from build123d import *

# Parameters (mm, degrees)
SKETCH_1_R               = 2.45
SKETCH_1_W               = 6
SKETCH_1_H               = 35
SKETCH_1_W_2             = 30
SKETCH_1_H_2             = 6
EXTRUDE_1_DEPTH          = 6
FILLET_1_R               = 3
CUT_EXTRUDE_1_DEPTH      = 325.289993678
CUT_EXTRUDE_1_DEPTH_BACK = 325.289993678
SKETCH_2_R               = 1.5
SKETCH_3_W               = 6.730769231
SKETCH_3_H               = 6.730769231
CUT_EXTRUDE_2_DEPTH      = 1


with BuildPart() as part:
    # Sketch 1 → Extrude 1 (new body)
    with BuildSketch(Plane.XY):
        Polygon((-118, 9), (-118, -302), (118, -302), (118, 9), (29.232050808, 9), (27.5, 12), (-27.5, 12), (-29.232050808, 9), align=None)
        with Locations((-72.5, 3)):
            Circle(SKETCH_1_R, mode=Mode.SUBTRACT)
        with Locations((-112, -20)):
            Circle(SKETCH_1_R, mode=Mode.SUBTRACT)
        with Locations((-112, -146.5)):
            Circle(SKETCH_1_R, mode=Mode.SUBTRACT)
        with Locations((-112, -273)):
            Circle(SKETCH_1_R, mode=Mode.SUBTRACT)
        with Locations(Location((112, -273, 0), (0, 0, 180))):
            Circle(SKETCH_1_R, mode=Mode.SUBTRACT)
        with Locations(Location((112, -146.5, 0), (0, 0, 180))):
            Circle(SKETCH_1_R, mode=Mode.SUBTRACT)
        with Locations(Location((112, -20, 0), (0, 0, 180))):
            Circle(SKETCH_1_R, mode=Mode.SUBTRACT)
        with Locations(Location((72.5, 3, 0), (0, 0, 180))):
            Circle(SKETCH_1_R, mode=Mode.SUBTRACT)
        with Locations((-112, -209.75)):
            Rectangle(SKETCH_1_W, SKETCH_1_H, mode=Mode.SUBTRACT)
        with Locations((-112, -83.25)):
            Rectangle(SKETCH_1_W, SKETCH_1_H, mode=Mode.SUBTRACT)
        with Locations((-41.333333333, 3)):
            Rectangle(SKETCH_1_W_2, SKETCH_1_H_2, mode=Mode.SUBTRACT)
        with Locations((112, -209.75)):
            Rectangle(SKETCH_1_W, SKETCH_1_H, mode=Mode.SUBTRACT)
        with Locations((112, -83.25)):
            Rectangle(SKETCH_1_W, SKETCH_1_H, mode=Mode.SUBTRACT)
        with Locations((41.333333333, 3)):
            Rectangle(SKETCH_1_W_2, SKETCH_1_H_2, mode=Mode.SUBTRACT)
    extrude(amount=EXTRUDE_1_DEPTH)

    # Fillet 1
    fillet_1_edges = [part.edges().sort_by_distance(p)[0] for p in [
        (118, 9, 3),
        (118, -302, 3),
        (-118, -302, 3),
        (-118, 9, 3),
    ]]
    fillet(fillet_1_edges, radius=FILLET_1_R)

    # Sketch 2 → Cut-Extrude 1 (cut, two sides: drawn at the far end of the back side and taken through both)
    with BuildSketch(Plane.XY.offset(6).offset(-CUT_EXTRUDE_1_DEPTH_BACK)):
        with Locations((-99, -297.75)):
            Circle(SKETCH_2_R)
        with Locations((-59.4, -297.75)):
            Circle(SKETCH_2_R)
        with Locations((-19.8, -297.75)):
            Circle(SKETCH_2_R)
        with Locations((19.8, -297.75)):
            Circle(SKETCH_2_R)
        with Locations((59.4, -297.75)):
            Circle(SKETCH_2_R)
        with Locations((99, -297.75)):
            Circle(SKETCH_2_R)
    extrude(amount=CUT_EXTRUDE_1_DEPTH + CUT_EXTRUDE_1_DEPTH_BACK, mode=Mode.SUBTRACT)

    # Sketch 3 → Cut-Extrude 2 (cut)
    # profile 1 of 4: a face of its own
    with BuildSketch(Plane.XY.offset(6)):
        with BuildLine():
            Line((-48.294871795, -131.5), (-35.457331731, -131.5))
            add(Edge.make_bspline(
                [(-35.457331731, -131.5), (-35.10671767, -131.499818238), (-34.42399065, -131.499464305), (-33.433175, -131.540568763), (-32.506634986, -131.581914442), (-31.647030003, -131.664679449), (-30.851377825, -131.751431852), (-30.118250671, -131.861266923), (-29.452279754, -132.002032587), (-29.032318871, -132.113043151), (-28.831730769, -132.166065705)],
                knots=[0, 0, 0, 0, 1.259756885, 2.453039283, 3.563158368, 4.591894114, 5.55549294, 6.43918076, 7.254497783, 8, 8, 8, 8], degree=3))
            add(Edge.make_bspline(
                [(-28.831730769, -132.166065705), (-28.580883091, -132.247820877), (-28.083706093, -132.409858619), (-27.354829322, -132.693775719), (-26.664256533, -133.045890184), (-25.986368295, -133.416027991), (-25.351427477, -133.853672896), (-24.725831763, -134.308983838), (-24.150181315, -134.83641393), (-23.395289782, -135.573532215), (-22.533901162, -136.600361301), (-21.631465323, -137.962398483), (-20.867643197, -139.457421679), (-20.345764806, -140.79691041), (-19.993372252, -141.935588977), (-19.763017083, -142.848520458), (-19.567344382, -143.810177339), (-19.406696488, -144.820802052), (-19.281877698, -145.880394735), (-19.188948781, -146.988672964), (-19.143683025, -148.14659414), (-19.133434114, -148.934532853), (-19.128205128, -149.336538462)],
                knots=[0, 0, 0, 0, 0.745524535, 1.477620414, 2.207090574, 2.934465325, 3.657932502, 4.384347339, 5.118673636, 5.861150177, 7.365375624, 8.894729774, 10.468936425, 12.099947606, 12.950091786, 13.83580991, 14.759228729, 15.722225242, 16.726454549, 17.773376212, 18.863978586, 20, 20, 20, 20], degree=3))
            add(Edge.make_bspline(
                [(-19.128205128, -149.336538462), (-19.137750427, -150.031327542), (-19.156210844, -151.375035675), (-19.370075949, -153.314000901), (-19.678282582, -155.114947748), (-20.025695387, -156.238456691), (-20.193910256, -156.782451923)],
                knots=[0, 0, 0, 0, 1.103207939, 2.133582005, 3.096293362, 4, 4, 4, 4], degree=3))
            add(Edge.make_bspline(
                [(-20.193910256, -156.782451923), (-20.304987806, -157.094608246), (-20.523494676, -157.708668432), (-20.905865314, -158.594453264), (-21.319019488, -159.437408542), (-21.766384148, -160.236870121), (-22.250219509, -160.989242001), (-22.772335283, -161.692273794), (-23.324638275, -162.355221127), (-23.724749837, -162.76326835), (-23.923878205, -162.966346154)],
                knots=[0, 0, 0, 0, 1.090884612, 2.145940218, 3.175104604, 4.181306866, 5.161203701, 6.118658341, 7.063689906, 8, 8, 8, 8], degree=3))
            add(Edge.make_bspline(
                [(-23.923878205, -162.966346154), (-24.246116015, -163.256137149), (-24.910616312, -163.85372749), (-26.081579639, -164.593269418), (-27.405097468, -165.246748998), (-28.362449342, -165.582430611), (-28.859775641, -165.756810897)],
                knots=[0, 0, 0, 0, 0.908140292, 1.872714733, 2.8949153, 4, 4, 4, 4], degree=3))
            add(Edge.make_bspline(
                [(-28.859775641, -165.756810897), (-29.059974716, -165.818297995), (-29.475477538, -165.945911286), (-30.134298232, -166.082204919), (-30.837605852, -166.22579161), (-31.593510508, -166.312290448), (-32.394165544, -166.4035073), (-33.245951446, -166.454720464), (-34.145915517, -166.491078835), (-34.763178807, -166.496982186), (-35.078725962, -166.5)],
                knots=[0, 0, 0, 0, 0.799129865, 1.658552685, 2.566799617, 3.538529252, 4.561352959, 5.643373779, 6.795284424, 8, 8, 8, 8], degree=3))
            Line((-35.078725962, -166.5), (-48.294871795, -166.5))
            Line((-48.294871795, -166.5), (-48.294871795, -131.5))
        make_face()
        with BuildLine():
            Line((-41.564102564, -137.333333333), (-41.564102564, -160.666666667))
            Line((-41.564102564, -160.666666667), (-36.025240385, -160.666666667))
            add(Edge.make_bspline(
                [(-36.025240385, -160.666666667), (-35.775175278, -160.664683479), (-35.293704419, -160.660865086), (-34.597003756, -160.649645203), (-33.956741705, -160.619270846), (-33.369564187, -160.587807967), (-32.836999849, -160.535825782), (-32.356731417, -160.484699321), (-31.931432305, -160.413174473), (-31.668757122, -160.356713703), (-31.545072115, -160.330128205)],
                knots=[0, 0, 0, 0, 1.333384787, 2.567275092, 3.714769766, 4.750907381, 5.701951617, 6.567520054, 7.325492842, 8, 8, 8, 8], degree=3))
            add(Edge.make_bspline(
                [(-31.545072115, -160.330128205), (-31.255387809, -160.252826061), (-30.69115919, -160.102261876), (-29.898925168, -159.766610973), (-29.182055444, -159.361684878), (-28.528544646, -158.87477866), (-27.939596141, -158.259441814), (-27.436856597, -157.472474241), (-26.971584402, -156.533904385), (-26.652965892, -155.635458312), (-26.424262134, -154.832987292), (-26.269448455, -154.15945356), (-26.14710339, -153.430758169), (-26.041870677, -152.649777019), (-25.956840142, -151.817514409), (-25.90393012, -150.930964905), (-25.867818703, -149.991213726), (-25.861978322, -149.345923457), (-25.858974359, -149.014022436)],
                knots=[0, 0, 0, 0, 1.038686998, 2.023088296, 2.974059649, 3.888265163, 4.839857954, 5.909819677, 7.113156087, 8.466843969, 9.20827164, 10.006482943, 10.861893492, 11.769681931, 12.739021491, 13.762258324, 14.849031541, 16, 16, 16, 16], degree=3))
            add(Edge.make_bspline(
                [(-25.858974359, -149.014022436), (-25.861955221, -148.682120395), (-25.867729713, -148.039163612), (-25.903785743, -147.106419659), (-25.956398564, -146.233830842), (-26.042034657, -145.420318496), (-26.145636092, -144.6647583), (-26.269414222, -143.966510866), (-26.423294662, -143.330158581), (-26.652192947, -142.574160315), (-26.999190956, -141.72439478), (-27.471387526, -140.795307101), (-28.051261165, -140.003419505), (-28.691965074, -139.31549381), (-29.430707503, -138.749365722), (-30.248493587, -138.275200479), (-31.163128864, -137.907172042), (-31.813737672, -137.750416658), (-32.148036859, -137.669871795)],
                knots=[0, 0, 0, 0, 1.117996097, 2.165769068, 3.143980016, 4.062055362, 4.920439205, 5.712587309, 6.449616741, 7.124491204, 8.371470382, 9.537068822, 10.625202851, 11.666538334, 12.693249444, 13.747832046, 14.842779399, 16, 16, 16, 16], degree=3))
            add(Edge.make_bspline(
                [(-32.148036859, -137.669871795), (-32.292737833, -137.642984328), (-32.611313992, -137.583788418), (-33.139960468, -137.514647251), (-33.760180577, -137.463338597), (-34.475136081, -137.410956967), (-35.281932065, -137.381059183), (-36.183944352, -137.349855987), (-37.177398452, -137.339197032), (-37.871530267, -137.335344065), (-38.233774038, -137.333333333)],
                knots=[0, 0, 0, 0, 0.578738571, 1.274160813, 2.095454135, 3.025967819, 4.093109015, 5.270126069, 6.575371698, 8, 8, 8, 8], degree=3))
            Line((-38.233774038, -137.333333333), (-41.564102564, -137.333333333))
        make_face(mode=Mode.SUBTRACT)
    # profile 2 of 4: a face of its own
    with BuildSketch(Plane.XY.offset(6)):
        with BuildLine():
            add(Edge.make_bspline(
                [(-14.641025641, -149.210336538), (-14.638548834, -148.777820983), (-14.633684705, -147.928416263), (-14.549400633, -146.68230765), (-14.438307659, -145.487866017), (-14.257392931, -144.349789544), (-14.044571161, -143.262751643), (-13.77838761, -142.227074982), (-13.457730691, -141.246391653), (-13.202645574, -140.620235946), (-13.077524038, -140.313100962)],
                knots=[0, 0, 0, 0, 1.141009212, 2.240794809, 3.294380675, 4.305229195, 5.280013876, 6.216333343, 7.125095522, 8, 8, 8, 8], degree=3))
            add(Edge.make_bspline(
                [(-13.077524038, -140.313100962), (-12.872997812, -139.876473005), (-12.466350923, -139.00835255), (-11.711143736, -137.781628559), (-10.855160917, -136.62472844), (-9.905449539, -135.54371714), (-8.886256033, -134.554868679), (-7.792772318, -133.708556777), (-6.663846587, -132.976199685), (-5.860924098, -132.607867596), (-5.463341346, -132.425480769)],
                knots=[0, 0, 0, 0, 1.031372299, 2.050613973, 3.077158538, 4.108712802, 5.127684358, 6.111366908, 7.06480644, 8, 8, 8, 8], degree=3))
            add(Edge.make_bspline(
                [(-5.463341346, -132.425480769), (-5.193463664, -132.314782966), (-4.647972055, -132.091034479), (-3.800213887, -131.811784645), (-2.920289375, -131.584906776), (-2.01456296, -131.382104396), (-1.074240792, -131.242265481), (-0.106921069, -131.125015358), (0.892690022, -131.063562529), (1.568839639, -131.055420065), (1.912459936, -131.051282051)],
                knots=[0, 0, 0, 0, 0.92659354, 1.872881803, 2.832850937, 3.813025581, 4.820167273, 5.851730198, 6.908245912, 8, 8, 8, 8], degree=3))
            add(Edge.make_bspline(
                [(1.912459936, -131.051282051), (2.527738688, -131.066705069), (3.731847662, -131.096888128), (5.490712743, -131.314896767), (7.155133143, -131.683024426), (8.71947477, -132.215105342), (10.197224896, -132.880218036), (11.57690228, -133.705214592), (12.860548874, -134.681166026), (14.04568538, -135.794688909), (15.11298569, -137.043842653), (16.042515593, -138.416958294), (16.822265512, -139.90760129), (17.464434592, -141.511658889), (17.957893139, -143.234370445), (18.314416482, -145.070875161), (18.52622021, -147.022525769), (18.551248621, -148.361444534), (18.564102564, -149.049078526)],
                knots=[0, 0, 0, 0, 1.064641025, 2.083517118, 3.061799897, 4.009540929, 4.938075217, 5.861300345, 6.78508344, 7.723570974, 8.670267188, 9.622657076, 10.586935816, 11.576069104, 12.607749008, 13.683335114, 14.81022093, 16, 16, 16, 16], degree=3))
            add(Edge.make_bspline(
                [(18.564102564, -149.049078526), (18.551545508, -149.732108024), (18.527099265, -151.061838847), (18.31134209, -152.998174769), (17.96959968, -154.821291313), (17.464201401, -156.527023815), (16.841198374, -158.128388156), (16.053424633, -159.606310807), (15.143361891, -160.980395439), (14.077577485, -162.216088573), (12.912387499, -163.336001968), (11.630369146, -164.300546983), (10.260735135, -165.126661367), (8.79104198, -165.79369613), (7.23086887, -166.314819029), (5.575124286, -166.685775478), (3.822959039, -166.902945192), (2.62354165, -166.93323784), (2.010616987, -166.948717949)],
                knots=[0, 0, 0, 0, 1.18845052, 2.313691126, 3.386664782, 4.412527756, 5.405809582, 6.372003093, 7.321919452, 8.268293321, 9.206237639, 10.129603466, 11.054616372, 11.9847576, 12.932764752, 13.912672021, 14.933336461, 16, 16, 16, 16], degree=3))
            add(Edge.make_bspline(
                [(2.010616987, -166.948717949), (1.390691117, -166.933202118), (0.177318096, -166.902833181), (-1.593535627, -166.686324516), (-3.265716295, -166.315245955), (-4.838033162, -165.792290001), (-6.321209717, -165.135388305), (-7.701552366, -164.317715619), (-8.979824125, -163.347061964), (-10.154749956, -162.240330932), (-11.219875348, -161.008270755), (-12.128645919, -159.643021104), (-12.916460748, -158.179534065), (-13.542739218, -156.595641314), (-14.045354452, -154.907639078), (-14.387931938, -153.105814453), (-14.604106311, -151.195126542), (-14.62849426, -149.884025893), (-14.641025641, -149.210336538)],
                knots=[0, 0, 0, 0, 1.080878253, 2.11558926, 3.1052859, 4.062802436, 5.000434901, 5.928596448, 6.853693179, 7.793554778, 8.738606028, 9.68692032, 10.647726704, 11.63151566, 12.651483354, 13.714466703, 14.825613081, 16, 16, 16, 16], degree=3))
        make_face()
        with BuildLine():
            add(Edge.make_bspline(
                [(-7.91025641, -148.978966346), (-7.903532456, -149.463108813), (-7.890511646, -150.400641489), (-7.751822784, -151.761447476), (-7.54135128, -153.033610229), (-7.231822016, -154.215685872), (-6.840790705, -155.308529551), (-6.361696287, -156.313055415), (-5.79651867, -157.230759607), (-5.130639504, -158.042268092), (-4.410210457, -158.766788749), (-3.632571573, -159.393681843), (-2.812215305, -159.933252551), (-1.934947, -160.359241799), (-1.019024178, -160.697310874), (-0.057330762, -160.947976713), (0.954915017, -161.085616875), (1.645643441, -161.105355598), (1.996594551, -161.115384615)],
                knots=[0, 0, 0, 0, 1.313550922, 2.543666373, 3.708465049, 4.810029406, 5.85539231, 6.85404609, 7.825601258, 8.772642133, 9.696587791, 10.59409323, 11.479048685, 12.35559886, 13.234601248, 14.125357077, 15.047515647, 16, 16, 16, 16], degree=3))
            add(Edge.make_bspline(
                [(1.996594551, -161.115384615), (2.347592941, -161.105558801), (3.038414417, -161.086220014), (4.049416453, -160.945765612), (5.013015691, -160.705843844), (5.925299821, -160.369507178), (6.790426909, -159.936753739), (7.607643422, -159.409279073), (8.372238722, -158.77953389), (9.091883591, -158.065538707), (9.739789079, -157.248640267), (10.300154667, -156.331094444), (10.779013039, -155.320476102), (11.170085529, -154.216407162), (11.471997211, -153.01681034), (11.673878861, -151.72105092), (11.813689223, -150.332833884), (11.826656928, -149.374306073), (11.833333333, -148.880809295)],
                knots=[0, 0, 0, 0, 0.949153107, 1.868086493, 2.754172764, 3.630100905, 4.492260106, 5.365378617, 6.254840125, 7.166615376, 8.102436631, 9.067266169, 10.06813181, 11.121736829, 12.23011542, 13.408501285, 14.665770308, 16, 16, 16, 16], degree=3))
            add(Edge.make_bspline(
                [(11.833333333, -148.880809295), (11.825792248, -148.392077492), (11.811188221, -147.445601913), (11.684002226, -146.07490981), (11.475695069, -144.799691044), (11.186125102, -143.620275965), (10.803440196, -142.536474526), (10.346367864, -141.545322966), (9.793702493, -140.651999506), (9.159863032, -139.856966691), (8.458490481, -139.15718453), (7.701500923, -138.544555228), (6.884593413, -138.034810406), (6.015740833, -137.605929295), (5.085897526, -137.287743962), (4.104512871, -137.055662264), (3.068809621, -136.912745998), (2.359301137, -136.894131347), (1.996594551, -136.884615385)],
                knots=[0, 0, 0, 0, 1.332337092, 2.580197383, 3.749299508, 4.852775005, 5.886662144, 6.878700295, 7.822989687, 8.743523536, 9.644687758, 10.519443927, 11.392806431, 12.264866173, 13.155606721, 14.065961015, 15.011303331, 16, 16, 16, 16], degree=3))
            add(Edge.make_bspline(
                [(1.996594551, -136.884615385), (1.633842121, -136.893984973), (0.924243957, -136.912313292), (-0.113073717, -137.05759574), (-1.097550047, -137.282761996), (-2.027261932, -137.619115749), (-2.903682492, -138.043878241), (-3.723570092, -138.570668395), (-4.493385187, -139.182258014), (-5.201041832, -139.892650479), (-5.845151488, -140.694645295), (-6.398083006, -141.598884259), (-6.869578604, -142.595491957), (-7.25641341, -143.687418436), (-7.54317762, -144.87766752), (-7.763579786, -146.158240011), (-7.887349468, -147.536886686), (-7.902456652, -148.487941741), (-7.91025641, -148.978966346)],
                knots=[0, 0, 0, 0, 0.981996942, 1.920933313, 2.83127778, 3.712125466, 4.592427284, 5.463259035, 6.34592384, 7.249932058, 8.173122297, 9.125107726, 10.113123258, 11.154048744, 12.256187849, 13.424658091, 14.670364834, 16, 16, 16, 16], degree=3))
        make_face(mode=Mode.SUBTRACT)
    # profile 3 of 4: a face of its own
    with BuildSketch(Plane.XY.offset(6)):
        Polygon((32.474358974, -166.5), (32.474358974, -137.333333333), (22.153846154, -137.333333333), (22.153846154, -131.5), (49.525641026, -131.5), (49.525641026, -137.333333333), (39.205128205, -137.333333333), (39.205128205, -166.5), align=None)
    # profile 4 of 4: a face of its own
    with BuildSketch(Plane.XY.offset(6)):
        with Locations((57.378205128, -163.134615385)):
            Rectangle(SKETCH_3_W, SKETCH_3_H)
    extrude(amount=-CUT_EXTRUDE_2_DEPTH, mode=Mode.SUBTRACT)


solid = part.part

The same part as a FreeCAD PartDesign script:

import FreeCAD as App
import Part
import Sketcher
Q = App.Units.Quantity


def edges_at(feature, points):
    """Names of the edges that pass closest to the given points."""
    edges = feature.Shape.Edges
    near = lambda p: min(range(len(edges)), key=lambda i: edges[i].distToShape(Part.Vertex(*p))[0])
    return sorted({f"Edge{near(p) + 1}" for p in points})

doc = App.newDocument("Part")
body = doc.addObject("PartDesign::Body", "Body")

# Sketch on XY plane
sketch1 = body.newObject("Sketcher::SketchObject", "Sketch")
sketch1.AttachmentSupport = (doc.getObject("XY_Plane"), [""])
sketch1.MapMode = "FlatFace"
sketch1.addGeometry(Part.LineSegment(App.Vector(-118, 9, 0), App.Vector(-118, -302, 0)), False)
sketch1.addGeometry(Part.LineSegment(App.Vector(-118, -302, 0), App.Vector(118, -302, 0)), False)
sketch1.addGeometry(Part.LineSegment(App.Vector(118, -302, 0), App.Vector(118, 9, 0)), False)
sketch1.addGeometry(Part.LineSegment(App.Vector(118, 9, 0), App.Vector(29.2, 9, 0)), False)
sketch1.addGeometry(Part.LineSegment(App.Vector(29.2, 9, 0), App.Vector(27.5, 12, 0)), False)
sketch1.addGeometry(Part.LineSegment(App.Vector(27.5, 12, 0), App.Vector(-27.5, 12, 0)), False)
sketch1.addGeometry(Part.LineSegment(App.Vector(-27.5, 12, 0), App.Vector(-29.2, 9, 0)), False)
sketch1.addGeometry(Part.LineSegment(App.Vector(-29.2, 9, 0), App.Vector(-118, 9, 0)), False)
sketch1.addGeometry(Part.Circle(App.Vector(-112, -273, 0), App.Vector(0, 0, 1), 2.5), False)
sketch1.addGeometry(Part.LineSegment(App.Vector(-109, -227.2, 0), App.Vector(-115, -227.2, 0)), False)
sketch1.addGeometry(Part.LineSegment(App.Vector(-115, -227.2, 0), App.Vector(-115, -192.2, 0)), False)
sketch1.addGeometry(Part.LineSegment(App.Vector(-115, -192.2, 0), App.Vector(-109, -192.2, 0)), False)
sketch1.addGeometry(Part.LineSegment(App.Vector(-109, -192.2, 0), App.Vector(-109, -227.2, 0)), False)
sketch1.addGeometry(Part.Circle(App.Vector(-112, -146.5, 0), App.Vector(0, 0, 1), 2.5), False)
sketch1.addGeometry(Part.Circle(App.Vector(112, -273, 0), App.Vector(0, 0, 1), 2.5), False)
sketch1.addGeometry(Part.LineSegment(App.Vector(115, -227.2, 0), App.Vector(109, -227.2, 0)), False)
sketch1.addGeometry(Part.LineSegment(App.Vector(109, -227.2, 0), App.Vector(109, -192.2, 0)), False)
sketch1.addGeometry(Part.LineSegment(App.Vector(109, -192.2, 0), App.Vector(115, -192.2, 0)), False)
sketch1.addGeometry(Part.LineSegment(App.Vector(115, -192.2, 0), App.Vector(115, -227.2, 0)), False)
sketch1.addGeometry(Part.Circle(App.Vector(112, -146.5, 0), App.Vector(0, 0, 1), 2.5), False)
sketch1.addGeometry(Part.LineSegment(App.Vector(-109, -100.8, 0), App.Vector(-115, -100.8, 0)), False)
sketch1.addGeometry(Part.LineSegment(App.Vector(-115, -100.8, 0), App.Vector(-115, -65.8, 0)), False)
sketch1.addGeometry(Part.LineSegment(App.Vector(-115, -65.8, 0), App.Vector(-109, -65.8, 0)), False)
sketch1.addGeometry(Part.LineSegment(App.Vector(-109, -65.8, 0), App.Vector(-109, -100.8, 0)), False)
sketch1.addGeometry(Part.Circle(App.Vector(-112, -20, 0), App.Vector(0, 0, 1), 2.5), False)
sketch1.addGeometry(Part.Circle(App.Vector(-72.5, 3, 0), App.Vector(0, 0, 1), 2.5), False)
sketch1.addGeometry(Part.LineSegment(App.Vector(-26.3, 0, 0), App.Vector(-56.3, 0, 0)), False)
sketch1.addGeometry(Part.LineSegment(App.Vector(-56.3, 0, 0), App.Vector(-56.3, 6, 0)), False)
sketch1.addGeometry(Part.LineSegment(App.Vector(-56.3, 6, 0), App.Vector(-26.3, 6, 0)), False)
sketch1.addGeometry(Part.LineSegment(App.Vector(-26.3, 6, 0), App.Vector(-26.3, 0, 0)), False)
sketch1.addGeometry(Part.LineSegment(App.Vector(115, -100.8, 0), App.Vector(109, -100.8, 0)), False)
sketch1.addGeometry(Part.LineSegment(App.Vector(109, -100.8, 0), App.Vector(109, -65.8, 0)), False)
sketch1.addGeometry(Part.LineSegment(App.Vector(109, -65.8, 0), App.Vector(115, -65.8, 0)), False)
sketch1.addGeometry(Part.LineSegment(App.Vector(115, -65.8, 0), App.Vector(115, -100.8, 0)), False)
sketch1.addGeometry(Part.LineSegment(App.Vector(56.3, 0, 0), App.Vector(26.3, 0, 0)), False)
sketch1.addGeometry(Part.LineSegment(App.Vector(26.3, 0, 0), App.Vector(26.3, 6, 0)), False)
sketch1.addGeometry(Part.LineSegment(App.Vector(26.3, 6, 0), App.Vector(56.3, 6, 0)), False)
sketch1.addGeometry(Part.LineSegment(App.Vector(56.3, 6, 0), App.Vector(56.3, 0, 0)), False)
sketch1.addGeometry(Part.Circle(App.Vector(72.5, 3, 0), App.Vector(0, 0, 1), 2.5), False)
sketch1.addGeometry(Part.Circle(App.Vector(112, -20, 0), App.Vector(0, 0, 1), 2.5), False)
sketch1.addConstraint(Sketcher.Constraint("Coincident", 0, 2, 1, 1))
sketch1.addConstraint(Sketcher.Constraint("Coincident", 1, 2, 2, 1))
sketch1.addConstraint(Sketcher.Constraint("Coincident", 2, 2, 3, 1))
sketch1.addConstraint(Sketcher.Constraint("Coincident", 3, 2, 4, 1))
sketch1.addConstraint(Sketcher.Constraint("Coincident", 4, 2, 5, 1))
sketch1.addConstraint(Sketcher.Constraint("Coincident", 5, 2, 6, 1))
sketch1.addConstraint(Sketcher.Constraint("Coincident", 6, 2, 7, 1))
sketch1.addConstraint(Sketcher.Constraint("Coincident", 7, 2, 0, 1))
sketch1.addConstraint(Sketcher.Constraint("Coincident", 9, 2, 10, 1))
sketch1.addConstraint(Sketcher.Constraint("Coincident", 10, 2, 11, 1))
sketch1.addConstraint(Sketcher.Constraint("Coincident", 11, 2, 12, 1))
sketch1.addConstraint(Sketcher.Constraint("Coincident", 12, 2, 9, 1))
sketch1.addConstraint(Sketcher.Constraint("Coincident", 15, 2, 16, 1))
sketch1.addConstraint(Sketcher.Constraint("Coincident", 16, 2, 17, 1))
sketch1.addConstraint(Sketcher.Constraint("Coincident", 17, 2, 18, 1))
sketch1.addConstraint(Sketcher.Constraint("Coincident", 18, 2, 15, 1))
sketch1.addConstraint(Sketcher.Constraint("Coincident", 20, 2, 21, 1))
sketch1.addConstraint(Sketcher.Constraint("Coincident", 21, 2, 22, 1))
sketch1.addConstraint(Sketcher.Constraint("Coincident", 22, 2, 23, 1))
sketch1.addConstraint(Sketcher.Constraint("Coincident", 23, 2, 20, 1))
sketch1.addConstraint(Sketcher.Constraint("Coincident", 26, 2, 27, 1))
sketch1.addConstraint(Sketcher.Constraint("Coincident", 27, 2, 28, 1))
sketch1.addConstraint(Sketcher.Constraint("Coincident", 28, 2, 29, 1))
sketch1.addConstraint(Sketcher.Constraint("Coincident", 29, 2, 26, 1))
sketch1.addConstraint(Sketcher.Constraint("Coincident", 30, 2, 31, 1))
sketch1.addConstraint(Sketcher.Constraint("Coincident", 31, 2, 32, 1))
sketch1.addConstraint(Sketcher.Constraint("Coincident", 32, 2, 33, 1))
sketch1.addConstraint(Sketcher.Constraint("Coincident", 33, 2, 30, 1))
sketch1.addConstraint(Sketcher.Constraint("Coincident", 34, 2, 35, 1))
sketch1.addConstraint(Sketcher.Constraint("Coincident", 35, 2, 36, 1))
sketch1.addConstraint(Sketcher.Constraint("Coincident", 36, 2, 37, 1))
sketch1.addConstraint(Sketcher.Constraint("Coincident", 37, 2, 34, 1))
sketch1.addConstraint(Sketcher.Constraint("Vertical", 0))
sketch1.addConstraint(Sketcher.Constraint("Horizontal", 1))
sketch1.addConstraint(Sketcher.Constraint("Vertical", 2))
sketch1.addConstraint(Sketcher.Constraint("Horizontal", 3))
sketch1.addConstraint(Sketcher.Constraint("Horizontal", 5))
sketch1.addConstraint(Sketcher.Constraint("Horizontal", 7))
sketch1.addConstraint(Sketcher.Constraint("Horizontal", 9))
sketch1.addConstraint(Sketcher.Constraint("Vertical", 10))
sketch1.addConstraint(Sketcher.Constraint("Horizontal", 11))
sketch1.addConstraint(Sketcher.Constraint("Vertical", 12))
sketch1.addConstraint(Sketcher.Constraint("Horizontal", 15))
sketch1.addConstraint(Sketcher.Constraint("Vertical", 16))
sketch1.addConstraint(Sketcher.Constraint("Horizontal", 17))
sketch1.addConstraint(Sketcher.Constraint("Vertical", 18))
sketch1.addConstraint(Sketcher.Constraint("Horizontal", 20))
sketch1.addConstraint(Sketcher.Constraint("Vertical", 21))
sketch1.addConstraint(Sketcher.Constraint("Horizontal", 22))
sketch1.addConstraint(Sketcher.Constraint("Vertical", 23))
sketch1.addConstraint(Sketcher.Constraint("Horizontal", 26))
sketch1.addConstraint(Sketcher.Constraint("Vertical", 27))
sketch1.addConstraint(Sketcher.Constraint("Horizontal", 28))
sketch1.addConstraint(Sketcher.Constraint("Vertical", 29))
sketch1.addConstraint(Sketcher.Constraint("Horizontal", 30))
sketch1.addConstraint(Sketcher.Constraint("Vertical", 31))
sketch1.addConstraint(Sketcher.Constraint("Horizontal", 32))
sketch1.addConstraint(Sketcher.Constraint("Vertical", 33))
sketch1.addConstraint(Sketcher.Constraint("Horizontal", 34))
sketch1.addConstraint(Sketcher.Constraint("Vertical", 35))
sketch1.addConstraint(Sketcher.Constraint("Horizontal", 36))
sketch1.addConstraint(Sketcher.Constraint("Vertical", 37))
sketch1.addConstraint(Sketcher.Constraint("Equal", 8, 13))
sketch1.addConstraint(Sketcher.Constraint("Equal", 13, 14))
sketch1.addConstraint(Sketcher.Constraint("Equal", 14, 19))
sketch1.addConstraint(Sketcher.Constraint("Equal", 19, 24))
sketch1.addConstraint(Sketcher.Constraint("Equal", 24, 25))
sketch1.addConstraint(Sketcher.Constraint("Equal", 25, 38))
sketch1.addConstraint(Sketcher.Constraint("Equal", 38, 39))
sketch1.addConstraint(Sketcher.Constraint("Symmetric", 29, 2, 34, 2, -1, 1))
sketch1.addConstraint(Sketcher.Constraint("Symmetric", 8, 3, 14, 3, -2))
sketch1.addConstraint(Sketcher.Constraint("Symmetric", 13, 3, 19, 3, -2))
sketch1.addConstraint(Sketcher.Constraint("Symmetric", 25, 3, 38, 3, -2))
sketch1.addConstraint(Sketcher.Constraint("Symmetric", 24, 3, 39, 3, -2))
sketch1.addConstraint(Sketcher.Constraint("Symmetric", 3, 2, 6, 2, -2))
sketch1.addConstraint(Sketcher.Constraint("Symmetric", 12, 2, 15, 2, -2))
sketch1.addConstraint(Sketcher.Constraint("Symmetric", 10, 2, 17, 2, -2))
sketch1.addConstraint(Sketcher.Constraint("Symmetric", 23, 2, 30, 2, -2))
sketch1.addConstraint(Sketcher.Constraint("Symmetric", 21, 2, 32, 2, -2))
sketch1.addConstraint(Sketcher.Constraint("Symmetric", 27, 2, 36, 2, -2))
sketch1.addConstraint(Sketcher.Constraint("PointOnObject", 26, 2, -1))
sketch1.addConstraint(Sketcher.Constraint("Vertical", 8, 3, 13, 3))
sketch1.addConstraint(Sketcher.Constraint("Vertical", 13, 3, 24, 3))
sketch1.addConstraint(Sketcher.Constraint("Vertical", 10, 2, 20, 2))
sketch1.addConstraint(Sketcher.Constraint("Vertical", 12, 2, 22, 2))
sketch1.addConstraint(Sketcher.Constraint("Equal", 3, 7))
sketch1.addConstraint(Sketcher.Constraint("Equal", 18, 21))
sketch1.addConstraint(Sketcher.Constraint("Equal", 32, 27))
sketch1.addConstraint(Sketcher.Constraint("Equal", 4, 6))
sketch1.addConstraint(Sketcher.Constraint("Diameter", 8, Q("4.9 mm")))
sketch1.addConstraint(Sketcher.Constraint("DistanceX", 1, 1, 1, 2, Q("236 mm")))
sketch1.addConstraint(Sketcher.Constraint("DistanceX", 5, 2, 5, 1, Q("55 mm")))
sketch1.addConstraint(Sketcher.Constraint("DistanceX", 9, 2, 9, 1, Q("6 mm")))
sketch1.addConstraint(Sketcher.Constraint("DistanceX", 26, 2, 26, 1, Q("30 mm")))
sketch1.addConstraint(Sketcher.Constraint("DistanceY", 0, 2, 0, 1, Q("311 mm")))
sketch1.addConstraint(Sketcher.Constraint("DistanceY", 10, 1, 10, 2, Q("35 mm")))
sketch1.addConstraint(Sketcher.Constraint("Angle", 4, Q("120 deg")))
sketch1.addConstraint(Sketcher.Constraint("DistanceX", 8, 3, -1, 1, Q("112 mm")))
sketch1.addConstraint(Sketcher.Constraint("DistanceY", 8, 3, -1, 1, Q("273 mm")))
sketch1.addConstraint(Sketcher.Constraint("DistanceY", 24, 3, -1, 1, Q("20 mm")))
sketch1.addConstraint(Sketcher.Constraint("DistanceY", -1, 1, 25, 3, Q("3 mm")))
sketch1.addConstraint(Sketcher.Constraint("DistanceY", 0, 2, -1, 1, Q("302 mm")))
sketch1.addConstraint(Sketcher.Constraint("DistanceY", -1, 1, 4, 2, Q("12 mm")))
sketch1.addConstraint(Sketcher.Constraint("DistanceX", 9, 2, -1, 1, Q("115 mm")))
sketch1.addConstraint(Sketcher.Constraint("DistanceX", 25, 3, 38, 3, Q("145 mm")))
sketch1.addConstraint(Sketcher.Constraint("DistanceY", 13, 3, -1, 1, Q("146.5 mm")))
sketch1.addConstraint(Sketcher.Constraint("DistanceY", 10, 2, 20, 2, Q("91.5 mm")))
sketch1.addConstraint(Sketcher.Constraint("DistanceY", 9, 2, -1, 1, Q("227.25 mm")))
sketch1.addConstraint(Sketcher.Constraint("DistanceX", 26, 2, -1, 1, Q("56.333333 mm")))
pad1 = body.newObject("PartDesign::Pad", "Pad")
pad1.Profile = sketch1
pad1.Length = 6
doc.recompute()

fillet = body.newObject("PartDesign::Fillet", "Fillet")
fillet.Base = (pad1, edges_at(pad1, [
    (118, 9, 3),
    (118, -302, 3),
    (-118, -302, 3),
    (-118, 9, 3),
]))
fillet.Radius = 3

# Sketch on XY plane
sketch2 = body.newObject("Sketcher::SketchObject", "Sketch001")
sketch2.AttachmentSupport = (doc.getObject("XY_Plane"), [""])
sketch2.MapMode = "FlatFace"
sketch2.AttachmentOffset = App.Placement(App.Vector(0, 0, 6), App.Rotation())
sketch2.addGeometry(Part.Circle(App.Vector(-99, -297.8, 0), App.Vector(0, 0, 1), 1.5), False)
sketch2.addGeometry(Part.Circle(App.Vector(-59.4, -297.8, 0), App.Vector(0, 0, 1), 1.5), False)
sketch2.addGeometry(Part.Circle(App.Vector(-19.8, -297.8, 0), App.Vector(0, 0, 1), 1.5), False)
sketch2.addGeometry(Part.Circle(App.Vector(19.8, -297.8, 0), App.Vector(0, 0, 1), 1.5), False)
sketch2.addGeometry(Part.Circle(App.Vector(59.4, -297.8, 0), App.Vector(0, 0, 1), 1.5), False)
sketch2.addGeometry(Part.Circle(App.Vector(99, -297.8, 0), App.Vector(0, 0, 1), 1.5), False)
sketch2.addConstraint(Sketcher.Constraint("Equal", 0, 1))
sketch2.addConstraint(Sketcher.Constraint("Equal", 1, 2))
sketch2.addConstraint(Sketcher.Constraint("Equal", 2, 3))
sketch2.addConstraint(Sketcher.Constraint("Equal", 3, 4))
sketch2.addConstraint(Sketcher.Constraint("Equal", 4, 5))
sketch2.addConstraint(Sketcher.Constraint("Symmetric", 2, 3, 3, 3, -2))
sketch2.addConstraint(Sketcher.Constraint("Symmetric", 1, 3, 4, 3, -2))
sketch2.addConstraint(Sketcher.Constraint("Symmetric", 0, 3, 5, 3, -2))
sketch2.addConstraint(Sketcher.Constraint("Horizontal", 0, 3, 1, 3))
sketch2.addConstraint(Sketcher.Constraint("Horizontal", 1, 3, 2, 3))
sketch2.addConstraint(Sketcher.Constraint("Diameter", 0, Q("3 mm")))
sketch2.addConstraint(Sketcher.Constraint("DistanceX", 0, 3, -1, 1, Q("99 mm")))
sketch2.addConstraint(Sketcher.Constraint("DistanceX", 1, 3, -1, 1, Q("59.4 mm")))
sketch2.addConstraint(Sketcher.Constraint("DistanceX", 2, 3, -1, 1, Q("19.8 mm")))
sketch2.addConstraint(Sketcher.Constraint("DistanceY", 0, 3, -1, 1, Q("297.75 mm")))
pocket1 = body.newObject("PartDesign::Pocket", "Pocket")
pocket1.Profile = sketch2
pocket1.Type = "ThroughAll"
pocket1.Midplane = True

# Sketch on XY plane
sketch3 = body.newObject("Sketcher::SketchObject", "Sketch002")
sketch3.AttachmentSupport = (doc.getObject("XY_Plane"), [""])
sketch3.MapMode = "FlatFace"
sketch3.AttachmentOffset = App.Placement(App.Vector(0, 0, 6), App.Rotation())
sketch3.addGeometry(Part.LineSegment(App.Vector(-35.457332, -131.5, 0), App.Vector(-48.294872, -131.5, 0)), False)
sketch3.addGeometry(Part.LineSegment(App.Vector(-48.294872, -131.5, 0), App.Vector(-48.294872, -166.5, 0)), False)
sketch3.addGeometry(Part.LineSegment(App.Vector(-48.294872, -166.5, 0), App.Vector(-35.078726, -166.5, 0)), False)
sketch3.addGeometry(Part.BSplineCurve([App.Vector(-28.859776, -165.756811, 0), App.Vector(-29.059975, -165.818298, 0), App.Vector(-29.475478, -165.945911, 0), App.Vector(-30.134298, -166.082205, 0), App.Vector(-30.837606, -166.225792, 0), App.Vector(-31.593511, -166.31229, 0), App.Vector(-32.394166, -166.403507, 0), App.Vector(-33.245951, -166.45472, 0), App.Vector(-34.145916, -166.491079, 0), App.Vector(-34.763179, -166.496982, 0), App.Vector(-35.078726, -166.5, 0)], [4, 1, 1, 1, 1, 1, 1, 1, 4], [0, 0.799129865, 1.658552685, 2.566799617, 3.538529252, 4.561352959, 5.643373779, 6.795284424, 8], False, 3, [1, 1, 1, 1, 1, 1, 1, 1, 1, 1, 1], False), False)
sketch3.addGeometry(Part.BSplineCurve([App.Vector(-23.923878, -162.966346, 0), App.Vector(-24.246116, -163.256137, 0), App.Vector(-24.910616, -163.853727, 0), App.Vector(-26.08158, -164.593269, 0), App.Vector(-27.405097, -165.246749, 0), App.Vector(-28.362449, -165.582431, 0), App.Vector(-28.859776, -165.756811, 0)], [4, 1, 1, 1, 4], [0, 0.908140292, 1.872714733, 2.8949153, 4], False, 3, [1, 1, 1, 1, 1, 1, 1], False), False)
sketch3.addGeometry(Part.BSplineCurve([App.Vector(-20.19391, -156.782452, 0), App.Vector(-20.304988, -157.094608, 0), App.Vector(-20.523495, -157.708668, 0), App.Vector(-20.905865, -158.594453, 0), App.Vector(-21.319019, -159.437409, 0), App.Vector(-21.766384, -160.23687, 0), App.Vector(-22.25022, -160.989242, 0), App.Vector(-22.772335, -161.692274, 0), App.Vector(-23.324638, -162.355221, 0), App.Vector(-23.72475, -162.763268, 0), App.Vector(-23.923878, -162.966346, 0)], [4, 1, 1, 1, 1, 1, 1, 1, 4], [0, 1.090884612, 2.145940218, 3.175104604, 4.181306866, 5.161203701, 6.118658341, 7.063689906, 8], False, 3, [1, 1, 1, 1, 1, 1, 1, 1, 1, 1, 1], False), False)
sketch3.addGeometry(Part.BSplineCurve([App.Vector(-19.128205, -149.336538, 0), App.Vector(-19.13775, -150.031328, 0), App.Vector(-19.156211, -151.375036, 0), App.Vector(-19.370076, -153.314001, 0), App.Vector(-19.678283, -155.114948, 0), App.Vector(-20.025695, -156.238457, 0), App.Vector(-20.19391, -156.782452, 0)], [4, 1, 1, 1, 4], [0, 1.103207939, 2.133582005, 3.096293362, 4], False, 3, [1, 1, 1, 1, 1, 1, 1], False), False)
sketch3.addGeometry(Part.BSplineCurve([App.Vector(-28.831731, -132.166066, 0), App.Vector(-28.580883, -132.247821, 0), App.Vector(-28.083706, -132.409859, 0), App.Vector(-27.354829, -132.693776, 0), App.Vector(-26.664257, -133.04589, 0), App.Vector(-25.986368, -133.416028, 0), App.Vector(-25.351427, -133.853673, 0), App.Vector(-24.725832, -134.308984, 0), App.Vector(-24.150181, -134.836414, 0), App.Vector(-23.39529, -135.573532, 0), App.Vector(-22.533901, -136.600361, 0), App.Vector(-21.631465, -137.962398, 0), App.Vector(-20.867643, -139.457422, 0), App.Vector(-20.345765, -140.79691, 0), App.Vector(-19.993372, -141.935589, 0), App.Vector(-19.763017, -142.84852, 0), App.Vector(-19.567344, -143.810177, 0), App.Vector(-19.406696, -144.820802, 0), App.Vector(-19.281878, -145.880395, 0), App.Vector(-19.188949, -146.988673, 0), App.Vector(-19.143683, -148.146594, 0), App.Vector(-19.133434, -148.934533, 0), App.Vector(-19.128205, -149.336538, 0)], [4, 1, 1, 1, 1, 1, 1, 1, 1, 1, 1, 1, 1, 1, 1, 1, 1, 1, 1, 1, 4], [0, 0.745524535, 1.477620414, 2.207090574, 2.934465325, 3.657932502, 4.384347339, 5.118673636, 5.861150177, 7.365375624, 8.894729774, 10.468936425, 12.099947606, 12.950091786, 13.83580991, 14.759228729, 15.722225242, 16.726454549, 17.773376212, 18.863978586, 20], False, 3, [1, 1, 1, 1, 1, 1, 1, 1, 1, 1, 1, 1, 1, 1, 1, 1, 1, 1, 1, 1, 1, 1, 1], False), False)
sketch3.addGeometry(Part.BSplineCurve([App.Vector(-35.457332, -131.5, 0), App.Vector(-35.106718, -131.499818, 0), App.Vector(-34.423991, -131.499464, 0), App.Vector(-33.433175, -131.540569, 0), App.Vector(-32.506635, -131.581914, 0), App.Vector(-31.64703, -131.664679, 0), App.Vector(-30.851378, -131.751432, 0), App.Vector(-30.118251, -131.861267, 0), App.Vector(-29.45228, -132.002033, 0), App.Vector(-29.032319, -132.113043, 0), App.Vector(-28.831731, -132.166066, 0)], [4, 1, 1, 1, 1, 1, 1, 1, 4], [0, 1.259756885, 2.453039283, 3.563158368, 4.591894114, 5.55549294, 6.43918076, 7.254497783, 8], False, 3, [1, 1, 1, 1, 1, 1, 1, 1, 1, 1, 1], False), False)
sketch3.addGeometry(Part.LineSegment(App.Vector(-41.564103, -137.333333, 0), App.Vector(-38.233774, -137.333333, 0)), False)
sketch3.addGeometry(Part.BSplineCurve([App.Vector(-32.148037, -137.669872, 0), App.Vector(-32.292738, -137.642984, 0), App.Vector(-32.611314, -137.583788, 0), App.Vector(-33.13996, -137.514647, 0), App.Vector(-33.760181, -137.463339, 0), App.Vector(-34.475136, -137.410957, 0), App.Vector(-35.281932, -137.381059, 0), App.Vector(-36.183944, -137.349856, 0), App.Vector(-37.177398, -137.339197, 0), App.Vector(-37.87153, -137.335344, 0), App.Vector(-38.233774, -137.333333, 0)], [4, 1, 1, 1, 1, 1, 1, 1, 4], [0, 0.578738571, 1.274160813, 2.095454135, 3.025967819, 4.093109015, 5.270126069, 6.575371698, 8], False, 3, [1, 1, 1, 1, 1, 1, 1, 1, 1, 1, 1], False), False)
sketch3.addGeometry(Part.BSplineCurve([App.Vector(-25.858974, -149.014022, 0), App.Vector(-25.861955, -148.68212, 0), App.Vector(-25.86773, -148.039164, 0), App.Vector(-25.903786, -147.10642, 0), App.Vector(-25.956399, -146.233831, 0), App.Vector(-26.042035, -145.420318, 0), App.Vector(-26.145636, -144.664758, 0), App.Vector(-26.269414, -143.966511, 0), App.Vector(-26.423295, -143.330159, 0), App.Vector(-26.652193, -142.57416, 0), App.Vector(-26.999191, -141.724395, 0), App.Vector(-27.471388, -140.795307, 0), App.Vector(-28.051261, -140.00342, 0), App.Vector(-28.691965, -139.315494, 0), App.Vector(-29.430708, -138.749366, 0), App.Vector(-30.248494, -138.2752, 0), App.Vector(-31.163129, -137.907172, 0), App.Vector(-31.813738, -137.750417, 0), App.Vector(-32.148037, -137.669872, 0)], [4, 1, 1, 1, 1, 1, 1, 1, 1, 1, 1, 1, 1, 1, 1, 1, 4], [0, 1.117996097, 2.165769068, 3.143980016, 4.062055362, 4.920439205, 5.712587309, 6.449616741, 7.124491204, 8.371470382, 9.537068822, 10.625202851, 11.666538334, 12.693249444, 13.747832046, 14.842779399, 16], False, 3, [1, 1, 1, 1, 1, 1, 1, 1, 1, 1, 1, 1, 1, 1, 1, 1, 1, 1, 1], False), False)
sketch3.addGeometry(Part.BSplineCurve([App.Vector(-31.545072, -160.330128, 0), App.Vector(-31.255388, -160.252826, 0), App.Vector(-30.691159, -160.102262, 0), App.Vector(-29.898925, -159.766611, 0), App.Vector(-29.182055, -159.361685, 0), App.Vector(-28.528545, -158.874779, 0), App.Vector(-27.939596, -158.259442, 0), App.Vector(-27.436857, -157.472474, 0), App.Vector(-26.971584, -156.533904, 0), App.Vector(-26.652966, -155.635458, 0), App.Vector(-26.424262, -154.832987, 0), App.Vector(-26.269448, -154.159454, 0), App.Vector(-26.147103, -153.430758, 0), App.Vector(-26.041871, -152.649777, 0), App.Vector(-25.95684, -151.817514, 0), App.Vector(-25.90393, -150.930965, 0), App.Vector(-25.867819, -149.991214, 0), App.Vector(-25.861978, -149.345923, 0), App.Vector(-25.858974, -149.014022, 0)], [4, 1, 1, 1, 1, 1, 1, 1, 1, 1, 1, 1, 1, 1, 1, 1, 4], [0, 1.038686998, 2.023088296, 2.974059649, 3.888265163, 4.839857954, 5.909819677, 7.113156087, 8.466843969, 9.20827164, 10.006482943, 10.861893492, 11.769681931, 12.739021491, 13.762258324, 14.849031541, 16], False, 3, [1, 1, 1, 1, 1, 1, 1, 1, 1, 1, 1, 1, 1, 1, 1, 1, 1, 1, 1], False), False)
sketch3.addGeometry(Part.BSplineCurve([App.Vector(-36.02524, -160.666667, 0), App.Vector(-35.775175, -160.664683, 0), App.Vector(-35.293704, -160.660865, 0), App.Vector(-34.597004, -160.649645, 0), App.Vector(-33.956742, -160.619271, 0), App.Vector(-33.369564, -160.587808, 0), App.Vector(-32.837, -160.535826, 0), App.Vector(-32.356731, -160.484699, 0), App.Vector(-31.931432, -160.413174, 0), App.Vector(-31.668757, -160.356714, 0), App.Vector(-31.545072, -160.330128, 0)], [4, 1, 1, 1, 1, 1, 1, 1, 4], [0, 1.333384787, 2.567275092, 3.714769766, 4.750907381, 5.701951617, 6.567520054, 7.325492842, 8], False, 3, [1, 1, 1, 1, 1, 1, 1, 1, 1, 1, 1], False), False)
sketch3.addGeometry(Part.LineSegment(App.Vector(-36.02524, -160.666667, 0), App.Vector(-41.564103, -160.666667, 0)), False)
sketch3.addGeometry(Part.LineSegment(App.Vector(-41.564103, -160.666667, 0), App.Vector(-41.564103, -137.333333, 0)), False)
sketch3.addGeometry(Part.BSplineCurve([App.Vector(-14.641026, -149.210337, 0), App.Vector(-14.638549, -148.777821, 0), App.Vector(-14.633685, -147.928416, 0), App.Vector(-14.549401, -146.682308, 0), App.Vector(-14.438308, -145.487866, 0), App.Vector(-14.257393, -144.34979, 0), App.Vector(-14.044571, -143.262752, 0), App.Vector(-13.778388, -142.227075, 0), App.Vector(-13.457731, -141.246392, 0), App.Vector(-13.202646, -140.620236, 0), App.Vector(-13.077524, -140.313101, 0)], [4, 1, 1, 1, 1, 1, 1, 1, 4], [0, 1.141009212, 2.240794809, 3.294380675, 4.305229195, 5.280013876, 6.216333343, 7.125095522, 8], False, 3, [1, 1, 1, 1, 1, 1, 1, 1, 1, 1, 1], False), False)
sketch3.addGeometry(Part.BSplineCurve([App.Vector(2.010617, -166.948718, 0), App.Vector(1.390691, -166.933202, 0), App.Vector(0.177318, -166.902833, 0), App.Vector(-1.593536, -166.686325, 0), App.Vector(-3.265716, -166.315246, 0), App.Vector(-4.838033, -165.79229, 0), App.Vector(-6.32121, -165.135388, 0), App.Vector(-7.701552, -164.317716, 0), App.Vector(-8.979824, -163.347062, 0), App.Vector(-10.15475, -162.240331, 0), App.Vector(-11.219875, -161.008271, 0), App.Vector(-12.128646, -159.643021, 0), App.Vector(-12.916461, -158.179534, 0), App.Vector(-13.542739, -156.595641, 0), App.Vector(-14.045354, -154.907639, 0), App.Vector(-14.387932, -153.105814, 0), App.Vector(-14.604106, -151.195127, 0), App.Vector(-14.628494, -149.884026, 0), App.Vector(-14.641026, -149.210337, 0)], [4, 1, 1, 1, 1, 1, 1, 1, 1, 1, 1, 1, 1, 1, 1, 1, 4], [0, 1.080878253, 2.11558926, 3.1052859, 4.062802436, 5.000434901, 5.928596448, 6.853693179, 7.793554778, 8.738606028, 9.68692032, 10.647726704, 11.63151566, 12.651483354, 13.714466703, 14.825613081, 16], False, 3, [1, 1, 1, 1, 1, 1, 1, 1, 1, 1, 1, 1, 1, 1, 1, 1, 1, 1, 1], False), False)
sketch3.addGeometry(Part.BSplineCurve([App.Vector(18.564103, -149.049079, 0), App.Vector(18.551546, -149.732108, 0), App.Vector(18.527099, -151.061839, 0), App.Vector(18.311342, -152.998175, 0), App.Vector(17.9696, -154.821291, 0), App.Vector(17.464201, -156.527024, 0), App.Vector(16.841198, -158.128388, 0), App.Vector(16.053425, -159.606311, 0), App.Vector(15.143362, -160.980395, 0), App.Vector(14.077577, -162.216089, 0), App.Vector(12.912387, -163.336002, 0), App.Vector(11.630369, -164.300547, 0), App.Vector(10.260735, -165.126661, 0), App.Vector(8.791042, -165.793696, 0), App.Vector(7.230869, -166.314819, 0), App.Vector(5.575124, -166.685775, 0), App.Vector(3.822959, -166.902945, 0), App.Vector(2.623542, -166.933238, 0), App.Vector(2.010617, -166.948718, 0)], [4, 1, 1, 1, 1, 1, 1, 1, 1, 1, 1, 1, 1, 1, 1, 1, 4], [0, 1.18845052, 2.313691126, 3.386664782, 4.412527756, 5.405809582, 6.372003093, 7.321919452, 8.268293321, 9.206237639, 10.129603466, 11.054616372, 11.9847576, 12.932764752, 13.912672021, 14.933336461, 16], False, 3, [1, 1, 1, 1, 1, 1, 1, 1, 1, 1, 1, 1, 1, 1, 1, 1, 1, 1, 1], False), False)
sketch3.addGeometry(Part.BSplineCurve([App.Vector(1.91246, -131.051282, 0), App.Vector(2.527739, -131.066705, 0), App.Vector(3.731848, -131.096888, 0), App.Vector(5.490713, -131.314897, 0), App.Vector(7.155133, -131.683024, 0), App.Vector(8.719475, -132.215105, 0), App.Vector(10.197225, -132.880218, 0), App.Vector(11.576902, -133.705215, 0), App.Vector(12.860549, -134.681166, 0), App.Vector(14.045685, -135.794689, 0), App.Vector(15.112986, -137.043843, 0), App.Vector(16.042516, -138.416958, 0), App.Vector(16.822266, -139.907601, 0), App.Vector(17.464435, -141.511659, 0), App.Vector(17.957893, -143.23437, 0), App.Vector(18.314416, -145.070875, 0), App.Vector(18.52622, -147.022526, 0), App.Vector(18.551249, -148.361445, 0), App.Vector(18.564103, -149.049079, 0)], [4, 1, 1, 1, 1, 1, 1, 1, 1, 1, 1, 1, 1, 1, 1, 1, 4], [0, 1.064641025, 2.083517118, 3.061799897, 4.009540929, 4.938075217, 5.861300345, 6.78508344, 7.723570974, 8.670267188, 9.622657076, 10.586935816, 11.576069104, 12.607749008, 13.683335114, 14.81022093, 16], False, 3, [1, 1, 1, 1, 1, 1, 1, 1, 1, 1, 1, 1, 1, 1, 1, 1, 1, 1, 1], False), False)
sketch3.addGeometry(Part.BSplineCurve([App.Vector(-5.463341, -132.425481, 0), App.Vector(-5.193464, -132.314783, 0), App.Vector(-4.647972, -132.091034, 0), App.Vector(-3.800214, -131.811785, 0), App.Vector(-2.920289, -131.584907, 0), App.Vector(-2.014563, -131.382104, 0), App.Vector(-1.074241, -131.242265, 0), App.Vector(-0.106921, -131.125015, 0), App.Vector(0.89269, -131.063563, 0), App.Vector(1.56884, -131.05542, 0), App.Vector(1.91246, -131.051282, 0)], [4, 1, 1, 1, 1, 1, 1, 1, 4], [0, 0.92659354, 1.872881803, 2.832850937, 3.813025581, 4.820167273, 5.851730198, 6.908245912, 8], False, 3, [1, 1, 1, 1, 1, 1, 1, 1, 1, 1, 1], False), False)
sketch3.addGeometry(Part.BSplineCurve([App.Vector(-13.077524, -140.313101, 0), App.Vector(-12.872998, -139.876473, 0), App.Vector(-12.466351, -139.008353, 0), App.Vector(-11.711144, -137.781629, 0), App.Vector(-10.855161, -136.624728, 0), App.Vector(-9.90545, -135.543717, 0), App.Vector(-8.886256, -134.554869, 0), App.Vector(-7.792772, -133.708557, 0), App.Vector(-6.663847, -132.9762, 0), App.Vector(-5.860924, -132.607868, 0), App.Vector(-5.463341, -132.425481, 0)], [4, 1, 1, 1, 1, 1, 1, 1, 4], [0, 1.031372299, 2.050613973, 3.077158538, 4.108712802, 5.127684358, 6.111366908, 7.06480644, 8], False, 3, [1, 1, 1, 1, 1, 1, 1, 1, 1, 1, 1], False), False)
sketch3.addGeometry(Part.BSplineCurve([App.Vector(1.996595, -136.884615, 0), App.Vector(1.633842, -136.893985, 0), App.Vector(0.924244, -136.912313, 0), App.Vector(-0.113074, -137.057596, 0), App.Vector(-1.09755, -137.282762, 0), App.Vector(-2.027262, -137.619116, 0), App.Vector(-2.903682, -138.043878, 0), App.Vector(-3.72357, -138.570668, 0), App.Vector(-4.493385, -139.182258, 0), App.Vector(-5.201042, -139.89265, 0), App.Vector(-5.845151, -140.694645, 0), App.Vector(-6.398083, -141.598884, 0), App.Vector(-6.869579, -142.595492, 0), App.Vector(-7.256413, -143.687418, 0), App.Vector(-7.543178, -144.877668, 0), App.Vector(-7.76358, -146.15824, 0), App.Vector(-7.887349, -147.536887, 0), App.Vector(-7.902457, -148.487942, 0), App.Vector(-7.910256, -148.978966, 0)], [4, 1, 1, 1, 1, 1, 1, 1, 1, 1, 1, 1, 1, 1, 1, 1, 4], [0, 0.981996942, 1.920933313, 2.83127778, 3.712125466, 4.592427284, 5.463259035, 6.34592384, 7.249932058, 8.173122297, 9.125107726, 10.113123258, 11.154048744, 12.256187849, 13.424658091, 14.670364834, 16], False, 3, [1, 1, 1, 1, 1, 1, 1, 1, 1, 1, 1, 1, 1, 1, 1, 1, 1, 1, 1], False), False)
sketch3.addGeometry(Part.BSplineCurve([App.Vector(11.833333, -148.880809, 0), App.Vector(11.825792, -148.392077, 0), App.Vector(11.811188, -147.445602, 0), App.Vector(11.684002, -146.07491, 0), App.Vector(11.475695, -144.799691, 0), App.Vector(11.186125, -143.620276, 0), App.Vector(10.80344, -142.536475, 0), App.Vector(10.346368, -141.545323, 0), App.Vector(9.793702, -140.652, 0), App.Vector(9.159863, -139.856967, 0), App.Vector(8.45849, -139.157185, 0), App.Vector(7.701501, -138.544555, 0), App.Vector(6.884593, -138.03481, 0), App.Vector(6.015741, -137.605929, 0), App.Vector(5.085898, -137.287744, 0), App.Vector(4.104513, -137.055662, 0), App.Vector(3.06881, -136.912746, 0), App.Vector(2.359301, -136.894131, 0), App.Vector(1.996595, -136.884615, 0)], [4, 1, 1, 1, 1, 1, 1, 1, 1, 1, 1, 1, 1, 1, 1, 1, 4], [0, 1.332337092, 2.580197383, 3.749299508, 4.852775005, 5.886662144, 6.878700295, 7.822989687, 8.743523536, 9.644687758, 10.519443927, 11.392806431, 12.264866173, 13.155606721, 14.065961015, 15.011303331, 16], False, 3, [1, 1, 1, 1, 1, 1, 1, 1, 1, 1, 1, 1, 1, 1, 1, 1, 1, 1, 1], False), False)
sketch3.addGeometry(Part.BSplineCurve([App.Vector(1.996595, -161.115385, 0), App.Vector(2.347593, -161.105559, 0), App.Vector(3.038414, -161.08622, 0), App.Vector(4.049416, -160.945766, 0), App.Vector(5.013016, -160.705844, 0), App.Vector(5.9253, -160.369507, 0), App.Vector(6.790427, -159.936754, 0), App.Vector(7.607643, -159.409279, 0), App.Vector(8.372239, -158.779534, 0), App.Vector(9.091884, -158.065539, 0), App.Vector(9.739789, -157.24864, 0), App.Vector(10.300155, -156.331094, 0), App.Vector(10.779013, -155.320476, 0), App.Vector(11.170086, -154.216407, 0), App.Vector(11.471997, -153.01681, 0), App.Vector(11.673879, -151.721051, 0), App.Vector(11.813689, -150.332834, 0), App.Vector(11.826657, -149.374306, 0), App.Vector(11.833333, -148.880809, 0)], [4, 1, 1, 1, 1, 1, 1, 1, 1, 1, 1, 1, 1, 1, 1, 1, 4], [0, 0.949153107, 1.868086493, 2.754172764, 3.630100905, 4.492260106, 5.365378617, 6.254840125, 7.166615376, 8.102436631, 9.067266169, 10.06813181, 11.121736829, 12.23011542, 13.408501285, 14.665770308, 16], False, 3, [1, 1, 1, 1, 1, 1, 1, 1, 1, 1, 1, 1, 1, 1, 1, 1, 1, 1, 1], False), False)
sketch3.addGeometry(Part.BSplineCurve([App.Vector(-7.910256, -148.978966, 0), App.Vector(-7.903532, -149.463109, 0), App.Vector(-7.890512, -150.400641, 0), App.Vector(-7.751823, -151.761447, 0), App.Vector(-7.541351, -153.03361, 0), App.Vector(-7.231822, -154.215686, 0), App.Vector(-6.840791, -155.30853, 0), App.Vector(-6.361696, -156.313055, 0), App.Vector(-5.796519, -157.23076, 0), App.Vector(-5.13064, -158.042268, 0), App.Vector(-4.41021, -158.766789, 0), App.Vector(-3.632572, -159.393682, 0), App.Vector(-2.812215, -159.933253, 0), App.Vector(-1.934947, -160.359242, 0), App.Vector(-1.019024, -160.697311, 0), App.Vector(-0.057331, -160.947977, 0), App.Vector(0.954915, -161.085617, 0), App.Vector(1.645643, -161.105356, 0), App.Vector(1.996595, -161.115385, 0)], [4, 1, 1, 1, 1, 1, 1, 1, 1, 1, 1, 1, 1, 1, 1, 1, 4], [0, 1.313550922, 2.543666373, 3.708465049, 4.810029406, 5.85539231, 6.85404609, 7.825601258, 8.772642133, 9.696587791, 10.59409323, 11.479048685, 12.35559886, 13.234601248, 14.125357077, 15.047515647, 16], False, 3, [1, 1, 1, 1, 1, 1, 1, 1, 1, 1, 1, 1, 1, 1, 1, 1, 1, 1, 1], False), False)
sketch3.addGeometry(Part.LineSegment(App.Vector(32.474359, -137.333333, 0), App.Vector(32.474359, -166.5, 0)), False)
sketch3.addGeometry(Part.LineSegment(App.Vector(32.474359, -166.5, 0), App.Vector(39.205128, -166.5, 0)), False)
sketch3.addGeometry(Part.LineSegment(App.Vector(39.205128, -166.5, 0), App.Vector(39.205128, -137.333333, 0)), False)
sketch3.addGeometry(Part.LineSegment(App.Vector(39.205128, -137.333333, 0), App.Vector(49.525641, -137.333333, 0)), False)
sketch3.addGeometry(Part.LineSegment(App.Vector(49.525641, -137.333333, 0), App.Vector(49.525641, -131.5, 0)), False)
sketch3.addGeometry(Part.LineSegment(App.Vector(49.525641, -131.5, 0), App.Vector(22.153846, -131.5, 0)), False)
sketch3.addGeometry(Part.LineSegment(App.Vector(22.153846, -131.5, 0), App.Vector(22.153846, -137.333333, 0)), False)
sketch3.addGeometry(Part.LineSegment(App.Vector(22.153846, -137.333333, 0), App.Vector(32.474359, -137.333333, 0)), False)
sketch3.addGeometry(Part.LineSegment(App.Vector(54.012821, -159.769231, 0), App.Vector(54.012821, -166.5, 0)), False)
sketch3.addGeometry(Part.LineSegment(App.Vector(54.012821, -166.5, 0), App.Vector(60.74359, -166.5, 0)), False)
sketch3.addGeometry(Part.LineSegment(App.Vector(60.74359, -166.5, 0), App.Vector(60.74359, -159.769231, 0)), False)
sketch3.addGeometry(Part.LineSegment(App.Vector(60.74359, -159.769231, 0), App.Vector(54.012821, -159.769231, 0)), False)
sketch3.addConstraint(Sketcher.Constraint("Block", 3))
sketch3.addConstraint(Sketcher.Constraint("Block", 4))
sketch3.addConstraint(Sketcher.Constraint("Block", 5))
sketch3.addConstraint(Sketcher.Constraint("Block", 6))
sketch3.addConstraint(Sketcher.Constraint("Block", 7))
sketch3.addConstraint(Sketcher.Constraint("Block", 8))
sketch3.addConstraint(Sketcher.Constraint("Block", 10))
sketch3.addConstraint(Sketcher.Constraint("Block", 11))
sketch3.addConstraint(Sketcher.Constraint("Block", 12))
sketch3.addConstraint(Sketcher.Constraint("Block", 13))
sketch3.addConstraint(Sketcher.Constraint("Block", 16))
sketch3.addConstraint(Sketcher.Constraint("Block", 17))
sketch3.addConstraint(Sketcher.Constraint("Block", 18))
sketch3.addConstraint(Sketcher.Constraint("Block", 19))
sketch3.addConstraint(Sketcher.Constraint("Block", 20))
sketch3.addConstraint(Sketcher.Constraint("Block", 21))
sketch3.addConstraint(Sketcher.Constraint("Block", 22))
sketch3.addConstraint(Sketcher.Constraint("Block", 23))
sketch3.addConstraint(Sketcher.Constraint("Block", 24))
sketch3.addConstraint(Sketcher.Constraint("Block", 25))
sketch3.addConstraint(Sketcher.Constraint("Coincident", 0, 2, 1, 1))
sketch3.addConstraint(Sketcher.Constraint("Coincident", 1, 2, 2, 1))
sketch3.addConstraint(Sketcher.Constraint("Coincident", 2, 2, 3, 2))
sketch3.addConstraint(Sketcher.Constraint("Coincident", 8, 1, 0, 1))
sketch3.addConstraint(Sketcher.Constraint("Coincident", 9, 2, 10, 2))
sketch3.addConstraint(Sketcher.Constraint("Coincident", 13, 1, 14, 1))
sketch3.addConstraint(Sketcher.Constraint("Coincident", 14, 2, 15, 1))
sketch3.addConstraint(Sketcher.Constraint("Coincident", 15, 2, 9, 1))
sketch3.addConstraint(Sketcher.Constraint("Coincident", 26, 2, 27, 1))
sketch3.addConstraint(Sketcher.Constraint("Coincident", 27, 2, 28, 1))
sketch3.addConstraint(Sketcher.Constraint("Coincident", 28, 2, 29, 1))
sketch3.addConstraint(Sketcher.Constraint("Coincident", 29, 2, 30, 1))
sketch3.addConstraint(Sketcher.Constraint("Coincident", 30, 2, 31, 1))
sketch3.addConstraint(Sketcher.Constraint("Coincident", 31, 2, 32, 1))
sketch3.addConstraint(Sketcher.Constraint("Coincident", 32, 2, 33, 1))
sketch3.addConstraint(Sketcher.Constraint("Coincident", 33, 2, 26, 1))
sketch3.addConstraint(Sketcher.Constraint("Coincident", 34, 2, 35, 1))
sketch3.addConstraint(Sketcher.Constraint("Coincident", 35, 2, 36, 1))
sketch3.addConstraint(Sketcher.Constraint("Coincident", 36, 2, 37, 1))
sketch3.addConstraint(Sketcher.Constraint("Coincident", 37, 2, 34, 1))
sketch3.addConstraint(Sketcher.Constraint("Horizontal", 0))
sketch3.addConstraint(Sketcher.Constraint("Vertical", 1))
sketch3.addConstraint(Sketcher.Constraint("Horizontal", 2))
sketch3.addConstraint(Sketcher.Constraint("Horizontal", 9))
sketch3.addConstraint(Sketcher.Constraint("Horizontal", 14))
sketch3.addConstraint(Sketcher.Constraint("Vertical", 15))
sketch3.addConstraint(Sketcher.Constraint("Vertical", 26))
sketch3.addConstraint(Sketcher.Constraint("Horizontal", 27))
sketch3.addConstraint(Sketcher.Constraint("Vertical", 28))
sketch3.addConstraint(Sketcher.Constraint("Horizontal", 29))
sketch3.addConstraint(Sketcher.Constraint("Vertical", 30))
sketch3.addConstraint(Sketcher.Constraint("Horizontal", 31))
sketch3.addConstraint(Sketcher.Constraint("Vertical", 32))
sketch3.addConstraint(Sketcher.Constraint("Horizontal", 33))
sketch3.addConstraint(Sketcher.Constraint("Vertical", 34))
sketch3.addConstraint(Sketcher.Constraint("Horizontal", 35))
sketch3.addConstraint(Sketcher.Constraint("Vertical", 36))
sketch3.addConstraint(Sketcher.Constraint("Horizontal", 37))
sketch3.addConstraint(Sketcher.Constraint("Horizontal", 2, 2, 26, 2))
sketch3.addConstraint(Sketcher.Constraint("Horizontal", 15, 2, 28, 2))
sketch3.addConstraint(Sketcher.Constraint("Horizontal", 0, 2, 30, 2))
sketch3.addConstraint(Sketcher.Constraint("Horizontal", 29, 2, 32, 2))
sketch3.addConstraint(Sketcher.Constraint("Horizontal", 27, 2, 34, 2))
sketch3.addConstraint(Sketcher.Constraint("Equal", 29, 33))
sketch3.addConstraint(Sketcher.Constraint("Equal", 27, 35))
sketch3.addConstraint(Sketcher.Constraint("Equal", 37, 34))
sketch3.addConstraint(Sketcher.Constraint("DistanceX", 0, 2, 0, 1, Q("12.83754 mm")))
sketch3.addConstraint(Sketcher.Constraint("DistanceX", 9, 1, 9, 2, Q("3.330329 mm")))
sketch3.addConstraint(Sketcher.Constraint("DistanceX", 27, 1, 27, 2, Q("6.730769 mm")))
sketch3.addConstraint(Sketcher.Constraint("DistanceX", 29, 1, 29, 2, Q("10.320513 mm")))
sketch3.addConstraint(Sketcher.Constraint("DistanceX", -1, 1, 26, 2, Q("32.474359 mm")))
sketch3.addConstraint(Sketcher.Constraint("DistanceX", -1, 1, 34, 2, Q("54.012821 mm")))
pocket2 = body.newObject("PartDesign::Pocket", "Pocket001")
pocket2.Profile = sketch3
pocket2.Length = 1

doc.recompute()
